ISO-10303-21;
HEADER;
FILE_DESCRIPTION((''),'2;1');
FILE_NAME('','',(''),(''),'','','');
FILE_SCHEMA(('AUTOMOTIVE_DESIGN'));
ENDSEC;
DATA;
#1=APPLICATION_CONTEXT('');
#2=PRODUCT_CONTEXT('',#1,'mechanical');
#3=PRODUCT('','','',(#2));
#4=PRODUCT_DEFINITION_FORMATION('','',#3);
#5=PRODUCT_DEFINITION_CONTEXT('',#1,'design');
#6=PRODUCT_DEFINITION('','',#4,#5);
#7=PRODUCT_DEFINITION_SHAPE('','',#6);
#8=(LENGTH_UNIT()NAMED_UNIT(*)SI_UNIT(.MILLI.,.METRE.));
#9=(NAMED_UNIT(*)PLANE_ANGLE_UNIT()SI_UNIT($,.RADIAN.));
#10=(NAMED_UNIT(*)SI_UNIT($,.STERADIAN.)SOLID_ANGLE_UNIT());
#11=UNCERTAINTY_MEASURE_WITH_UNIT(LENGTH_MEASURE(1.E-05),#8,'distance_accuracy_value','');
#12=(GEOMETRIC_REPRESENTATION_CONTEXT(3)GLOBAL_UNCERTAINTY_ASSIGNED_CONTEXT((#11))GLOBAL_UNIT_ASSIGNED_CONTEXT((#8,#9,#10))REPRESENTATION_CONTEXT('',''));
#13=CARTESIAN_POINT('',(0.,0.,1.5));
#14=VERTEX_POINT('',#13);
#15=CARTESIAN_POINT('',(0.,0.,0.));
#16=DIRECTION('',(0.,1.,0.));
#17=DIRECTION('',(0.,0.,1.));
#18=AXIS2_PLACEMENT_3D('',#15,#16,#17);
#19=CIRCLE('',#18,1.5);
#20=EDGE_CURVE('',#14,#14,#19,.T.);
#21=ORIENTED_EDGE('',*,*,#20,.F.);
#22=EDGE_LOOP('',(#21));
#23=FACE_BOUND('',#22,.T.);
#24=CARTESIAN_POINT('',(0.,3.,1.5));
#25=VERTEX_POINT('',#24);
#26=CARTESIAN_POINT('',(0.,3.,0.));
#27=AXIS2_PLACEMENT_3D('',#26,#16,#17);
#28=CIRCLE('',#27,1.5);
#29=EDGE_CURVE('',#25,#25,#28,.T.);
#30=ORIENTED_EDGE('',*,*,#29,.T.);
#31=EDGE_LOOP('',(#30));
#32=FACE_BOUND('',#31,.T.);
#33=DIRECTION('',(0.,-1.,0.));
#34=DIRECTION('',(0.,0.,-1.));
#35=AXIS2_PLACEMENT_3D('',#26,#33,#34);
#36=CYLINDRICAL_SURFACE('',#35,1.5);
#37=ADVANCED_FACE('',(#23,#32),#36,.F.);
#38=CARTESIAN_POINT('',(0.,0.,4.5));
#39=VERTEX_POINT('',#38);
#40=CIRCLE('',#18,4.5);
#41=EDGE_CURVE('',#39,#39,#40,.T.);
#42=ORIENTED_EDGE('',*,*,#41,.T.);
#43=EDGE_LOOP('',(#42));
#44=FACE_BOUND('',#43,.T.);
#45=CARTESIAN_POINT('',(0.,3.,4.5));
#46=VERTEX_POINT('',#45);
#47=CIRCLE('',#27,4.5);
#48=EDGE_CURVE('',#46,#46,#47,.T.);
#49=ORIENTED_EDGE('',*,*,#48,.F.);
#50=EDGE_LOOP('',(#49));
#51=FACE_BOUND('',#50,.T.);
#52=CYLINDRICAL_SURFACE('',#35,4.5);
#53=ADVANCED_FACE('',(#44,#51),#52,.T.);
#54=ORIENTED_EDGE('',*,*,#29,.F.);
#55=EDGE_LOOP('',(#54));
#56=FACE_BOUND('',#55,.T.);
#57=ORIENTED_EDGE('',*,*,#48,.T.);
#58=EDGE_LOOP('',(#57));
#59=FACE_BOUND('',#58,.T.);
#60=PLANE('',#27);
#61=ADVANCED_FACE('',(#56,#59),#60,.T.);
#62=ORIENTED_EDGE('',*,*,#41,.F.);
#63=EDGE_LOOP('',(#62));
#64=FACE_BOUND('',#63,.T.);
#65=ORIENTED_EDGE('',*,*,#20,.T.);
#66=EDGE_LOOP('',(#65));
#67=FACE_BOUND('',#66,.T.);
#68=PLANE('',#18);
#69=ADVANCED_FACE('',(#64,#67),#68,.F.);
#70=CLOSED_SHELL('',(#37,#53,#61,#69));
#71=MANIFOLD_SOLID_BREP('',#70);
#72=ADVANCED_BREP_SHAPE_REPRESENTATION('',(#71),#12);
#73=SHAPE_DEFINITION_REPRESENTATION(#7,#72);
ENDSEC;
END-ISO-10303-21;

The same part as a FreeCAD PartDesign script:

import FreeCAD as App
import Part
import Sketcher
from FreeCAD import Vector

doc = App.newDocument("Part")
params = doc.addObject("Spreadsheet::Sheet", "Params")
for row, (alias, value) in enumerate([
    ("sketch1_diameter", "9 mm"),
    ("sketch1_diameter2", "3 mm"),
    ("pad1_length", "3 mm"),
], start=1):
    params.set(f"A{row}", alias)
    params.set(f"B{row}", "=" + value)
    params.setAlias(f"B{row}", alias)

body = doc.addObject("PartDesign::Body", "Body")

sketch1 = body.newObject("Sketcher::SketchObject", "Sketch")
sketch1.AttachmentSupport = (doc.getObject("XZ_Plane"), [""])
sketch1.MapMode = "FlatFace"
sketch1.addGeometry([
    Part.Circle(Vector(0, 0, 0), Vector(0, 0, 1), 4.5),
    Part.Circle(Vector(0, 0, 0), Vector(0, 0, 1), 1.5),
], False)
sketch1.addConstraint([
    Sketcher.Constraint("Coincident", 0, 3, -1, 1),
    Sketcher.Constraint("Coincident", 1, 3, -1, 1),
    Sketcher.Constraint("Diameter", 0, 9.0),
    Sketcher.Constraint("Diameter", 1, 3.0),
])
sketch1.setExpression("Constraints[2]", "Params.sketch1_diameter")
sketch1.setExpression("Constraints[3]", "Params.sketch1_diameter2")
pad1 = body.newObject("PartDesign::Pad", "Pad")
pad1.Profile = sketch1
pad1.setExpression("Length", "Params.pad1_length")
pad1.Reversed = True

doc.recompute()
